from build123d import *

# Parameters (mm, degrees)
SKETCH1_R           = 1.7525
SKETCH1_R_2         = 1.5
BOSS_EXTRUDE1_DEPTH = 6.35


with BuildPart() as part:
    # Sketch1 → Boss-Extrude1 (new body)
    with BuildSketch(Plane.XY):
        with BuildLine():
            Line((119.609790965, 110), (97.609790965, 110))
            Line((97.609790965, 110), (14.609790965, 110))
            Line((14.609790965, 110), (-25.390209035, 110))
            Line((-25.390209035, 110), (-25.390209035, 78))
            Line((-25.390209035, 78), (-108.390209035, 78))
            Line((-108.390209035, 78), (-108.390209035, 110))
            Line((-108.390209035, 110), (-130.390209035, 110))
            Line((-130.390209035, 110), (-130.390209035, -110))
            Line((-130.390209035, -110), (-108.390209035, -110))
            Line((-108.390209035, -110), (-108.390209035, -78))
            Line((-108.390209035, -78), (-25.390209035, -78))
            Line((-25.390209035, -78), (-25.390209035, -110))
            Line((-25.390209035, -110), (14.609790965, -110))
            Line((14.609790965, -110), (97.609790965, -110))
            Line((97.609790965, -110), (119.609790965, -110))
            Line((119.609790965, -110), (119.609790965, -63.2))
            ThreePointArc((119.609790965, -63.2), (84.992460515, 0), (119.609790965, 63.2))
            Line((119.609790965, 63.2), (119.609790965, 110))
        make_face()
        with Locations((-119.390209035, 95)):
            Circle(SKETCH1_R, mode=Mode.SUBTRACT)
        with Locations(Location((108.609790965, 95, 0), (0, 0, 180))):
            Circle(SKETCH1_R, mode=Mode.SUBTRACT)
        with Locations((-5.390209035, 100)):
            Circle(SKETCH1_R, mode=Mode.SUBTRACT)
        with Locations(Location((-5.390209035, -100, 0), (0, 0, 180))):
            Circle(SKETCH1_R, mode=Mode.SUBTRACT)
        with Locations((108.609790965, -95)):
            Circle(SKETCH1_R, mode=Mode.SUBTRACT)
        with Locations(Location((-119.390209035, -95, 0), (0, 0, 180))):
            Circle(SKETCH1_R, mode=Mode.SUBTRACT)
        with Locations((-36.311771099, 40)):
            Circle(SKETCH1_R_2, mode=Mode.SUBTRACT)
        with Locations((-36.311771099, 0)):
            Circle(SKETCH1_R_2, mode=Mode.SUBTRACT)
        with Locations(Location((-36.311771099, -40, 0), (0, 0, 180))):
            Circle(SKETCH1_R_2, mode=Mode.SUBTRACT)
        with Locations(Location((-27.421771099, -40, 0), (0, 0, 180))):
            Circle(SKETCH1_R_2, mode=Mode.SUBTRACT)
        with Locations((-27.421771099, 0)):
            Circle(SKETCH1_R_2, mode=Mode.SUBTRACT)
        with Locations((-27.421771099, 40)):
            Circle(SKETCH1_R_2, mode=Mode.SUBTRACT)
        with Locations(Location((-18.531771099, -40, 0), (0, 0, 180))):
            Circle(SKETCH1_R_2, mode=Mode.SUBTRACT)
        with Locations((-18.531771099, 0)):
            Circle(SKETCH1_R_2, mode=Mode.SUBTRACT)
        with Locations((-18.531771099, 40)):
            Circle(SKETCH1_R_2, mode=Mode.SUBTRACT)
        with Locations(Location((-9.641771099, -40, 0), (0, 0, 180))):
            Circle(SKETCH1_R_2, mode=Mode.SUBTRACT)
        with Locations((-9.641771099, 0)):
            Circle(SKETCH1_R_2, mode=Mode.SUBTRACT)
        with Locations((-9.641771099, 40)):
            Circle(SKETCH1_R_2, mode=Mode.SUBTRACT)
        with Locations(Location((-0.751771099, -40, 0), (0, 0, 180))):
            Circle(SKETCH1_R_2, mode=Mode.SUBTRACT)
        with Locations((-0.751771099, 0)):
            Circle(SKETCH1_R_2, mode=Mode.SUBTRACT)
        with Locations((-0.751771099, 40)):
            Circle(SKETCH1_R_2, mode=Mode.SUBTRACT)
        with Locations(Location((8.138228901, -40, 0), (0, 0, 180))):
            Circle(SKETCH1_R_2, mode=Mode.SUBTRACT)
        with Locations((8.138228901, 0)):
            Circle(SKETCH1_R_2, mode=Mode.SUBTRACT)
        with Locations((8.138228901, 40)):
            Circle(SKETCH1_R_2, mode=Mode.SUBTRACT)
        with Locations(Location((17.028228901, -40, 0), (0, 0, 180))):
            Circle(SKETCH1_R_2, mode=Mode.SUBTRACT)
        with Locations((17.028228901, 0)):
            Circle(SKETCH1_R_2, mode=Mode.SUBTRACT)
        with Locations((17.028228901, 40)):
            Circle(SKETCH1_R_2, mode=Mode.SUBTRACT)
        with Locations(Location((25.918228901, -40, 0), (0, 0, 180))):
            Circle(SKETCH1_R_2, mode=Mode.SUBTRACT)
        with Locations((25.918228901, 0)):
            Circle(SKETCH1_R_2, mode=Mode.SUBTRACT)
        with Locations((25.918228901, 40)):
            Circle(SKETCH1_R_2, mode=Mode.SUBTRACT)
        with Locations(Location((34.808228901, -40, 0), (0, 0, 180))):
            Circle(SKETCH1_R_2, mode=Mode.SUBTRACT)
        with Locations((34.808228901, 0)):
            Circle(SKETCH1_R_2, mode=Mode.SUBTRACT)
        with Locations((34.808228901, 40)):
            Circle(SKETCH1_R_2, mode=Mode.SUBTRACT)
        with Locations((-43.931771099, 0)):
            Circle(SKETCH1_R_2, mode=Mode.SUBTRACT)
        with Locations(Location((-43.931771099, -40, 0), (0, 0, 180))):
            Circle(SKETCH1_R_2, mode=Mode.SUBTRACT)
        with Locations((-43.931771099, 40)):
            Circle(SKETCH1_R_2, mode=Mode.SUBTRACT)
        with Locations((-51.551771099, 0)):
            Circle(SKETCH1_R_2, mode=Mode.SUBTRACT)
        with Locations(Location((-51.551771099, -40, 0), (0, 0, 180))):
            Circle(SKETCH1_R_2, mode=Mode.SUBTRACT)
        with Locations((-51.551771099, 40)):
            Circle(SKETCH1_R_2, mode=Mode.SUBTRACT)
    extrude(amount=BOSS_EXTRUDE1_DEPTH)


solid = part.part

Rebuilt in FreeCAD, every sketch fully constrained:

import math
import FreeCAD as App
import Part
import Sketcher
from FreeCAD import Vector
Q = App.Units.Quantity

doc = App.newDocument("Part")
body = doc.addObject("PartDesign::Body", "Body")

sketch1 = body.newObject("Sketcher::SketchObject", "Sketch")
sketch1.AttachmentSupport = (doc.getObject("XY_Plane"), [""])
sketch1.MapMode = "FlatFace"
sketch1.addGeometry(Part.LineSegment(Vector(119.6, 110, 0), Vector(-25.4, 110, 0)), False)
sketch1.addGeometry(Part.LineSegment(Vector(-25.4, 110, 0), Vector(-25.4, 78, 0)), False)
sketch1.addGeometry(Part.LineSegment(Vector(-25.4, 78, 0), Vector(-108.4, 78, 0)), False)
sketch1.addGeometry(Part.LineSegment(Vector(-108.4, 78, 0), Vector(-108.4, 110, 0)), False)
sketch1.addGeometry(Part.LineSegment(Vector(-108.4, 110, 0), Vector(-130.4, 110, 0)), False)
sketch1.addGeometry(Part.LineSegment(Vector(-130.4, 110, 0), Vector(-130.4, -110, 0)), False)
sketch1.addGeometry(Part.LineSegment(Vector(-130.4, -110, 0), Vector(-108.4, -110, 0)), False)
sketch1.addGeometry(Part.LineSegment(Vector(-108.4, -110, 0), Vector(-108.4, -78, 0)), False)
sketch1.addGeometry(Part.LineSegment(Vector(-108.4, -78, 0), Vector(-25.4, -78, 0)), False)
sketch1.addGeometry(Part.LineSegment(Vector(-25.4, -78, 0), Vector(-25.4, -110, 0)), False)
sketch1.addGeometry(Part.LineSegment(Vector(-25.4, -110, 0), Vector(119.6, -110, 0)), False)
sketch1.addGeometry(Part.LineSegment(Vector(119.6, -110, 0), Vector(119.6, -63.2, 0)), False)
sketch1.addGeometry(Part.ArcOfCircle(Part.Circle(Vector(160, 0, 0), Vector(0, 0, 1), 75), math.radians(123), math.radians(237)), False)
sketch1.addGeometry(Part.LineSegment(Vector(119.6, 63.2, 0), Vector(119.6, 110, 0)), False)
sketch1.addGeometry(Part.Circle(Vector(-119.4, -95, 0), Vector(0, 0, 1), 1.8), False)
sketch1.addGeometry(Part.Circle(Vector(-51.6, -40, 0), Vector(0, 0, 1), 1.5), False)
sketch1.addGeometry(Part.Circle(Vector(-43.9, -40, 0), Vector(0, 0, 1), 1.5), False)
sketch1.addGeometry(Part.Circle(Vector(-36.3, -40, 0), Vector(0, 0, 1), 1.5), False)
sketch1.addGeometry(Part.Circle(Vector(-27.4, -40, 0), Vector(0, 0, 1), 1.5), False)
sketch1.addGeometry(Part.Circle(Vector(-18.5, -40, 0), Vector(0, 0, 1), 1.5), False)
sketch1.addGeometry(Part.Circle(Vector(-9.6, -40, 0), Vector(0, 0, 1), 1.5), False)
sketch1.addGeometry(Part.Circle(Vector(-5.4, -100, 0), Vector(0, 0, 1), 1.8), False)
sketch1.addGeometry(Part.Circle(Vector(108.6, -95, 0), Vector(0, 0, 1), 1.8), False)
sketch1.addGeometry(Part.Circle(Vector(-0.8, -40, 0), Vector(0, 0, 1), 1.5), False)
sketch1.addGeometry(Part.Circle(Vector(8.1, -40, 0), Vector(0, 0, 1), 1.5), False)
sketch1.addGeometry(Part.Circle(Vector(17, -40, 0), Vector(0, 0, 1), 1.5), False)
sketch1.addGeometry(Part.Circle(Vector(25.9, -40, 0), Vector(0, 0, 1), 1.5), False)
sketch1.addGeometry(Part.Circle(Vector(34.8, -40, 0), Vector(0, 0, 1), 1.5), False)
sketch1.addGeometry(Part.Circle(Vector(-51.6, 0, 0), Vector(0, 0, 1), 1.5), False)
sketch1.addGeometry(Part.Circle(Vector(-43.9, 0, 0), Vector(0, 0, 1), 1.5), False)
sketch1.addGeometry(Part.Circle(Vector(-36.3, 0, 0), Vector(0, 0, 1), 1.5), False)
sketch1.addGeometry(Part.Circle(Vector(-27.4, 0, 0), Vector(0, 0, 1), 1.5), False)
sketch1.addGeometry(Part.Circle(Vector(-18.5, 0, 0), Vector(0, 0, 1), 1.5), False)
sketch1.addGeometry(Part.Circle(Vector(-9.6, 0, 0), Vector(0, 0, 1), 1.5), False)
sketch1.addGeometry(Part.Circle(Vector(-51.6, 40, 0), Vector(0, 0, 1), 1.5), False)
sketch1.addGeometry(Part.Circle(Vector(-43.9, 40, 0), Vector(0, 0, 1), 1.5), False)
sketch1.addGeometry(Part.Circle(Vector(-36.3, 40, 0), Vector(0, 0, 1), 1.5), False)
sketch1.addGeometry(Part.Circle(Vector(-27.4, 40, 0), Vector(0, 0, 1), 1.5), False)
sketch1.addGeometry(Part.Circle(Vector(-18.5, 40, 0), Vector(0, 0, 1), 1.5), False)
sketch1.addGeometry(Part.Circle(Vector(-9.6, 40, 0), Vector(0, 0, 1), 1.5), False)
sketch1.addGeometry(Part.Circle(Vector(-119.4, 95, 0), Vector(0, 0, 1), 1.8), False)
sketch1.addGeometry(Part.Circle(Vector(-0.8, 0, 0), Vector(0, 0, 1), 1.5), False)
sketch1.addGeometry(Part.Circle(Vector(8.1, 0, 0), Vector(0, 0, 1), 1.5), False)
sketch1.addGeometry(Part.Circle(Vector(17, 0, 0), Vector(0, 0, 1), 1.5), False)
sketch1.addGeometry(Part.Circle(Vector(25.9, 0, 0), Vector(0, 0, 1), 1.5), False)
sketch1.addGeometry(Part.Circle(Vector(34.8, 0, 0), Vector(0, 0, 1), 1.5), False)
sketch1.addGeometry(Part.Circle(Vector(-0.8, 40, 0), Vector(0, 0, 1), 1.5), False)
sketch1.addGeometry(Part.Circle(Vector(8.1, 40, 0), Vector(0, 0, 1), 1.5), False)
sketch1.addGeometry(Part.Circle(Vector(17, 40, 0), Vector(0, 0, 1), 1.5), False)
sketch1.addGeometry(Part.Circle(Vector(25.9, 40, 0), Vector(0, 0, 1), 1.5), False)
sketch1.addGeometry(Part.Circle(Vector(34.8, 40, 0), Vector(0, 0, 1), 1.5), False)
sketch1.addGeometry(Part.Circle(Vector(-5.4, 100, 0), Vector(0, 0, 1), 1.8), False)
sketch1.addGeometry(Part.Circle(Vector(108.6, 95, 0), Vector(0, 0, 1), 1.8), False)
sketch1.addConstraint(Sketcher.Constraint("Coincident", 0, 2, 1, 1))
sketch1.addConstraint(Sketcher.Constraint("Coincident", 1, 2, 2, 1))
sketch1.addConstraint(Sketcher.Constraint("Coincident", 2, 2, 3, 1))
sketch1.addConstraint(Sketcher.Constraint("Coincident", 3, 2, 4, 1))
sketch1.addConstraint(Sketcher.Constraint("Coincident", 4, 2, 5, 1))
sketch1.addConstraint(Sketcher.Constraint("Coincident", 5, 2, 6, 1))
sketch1.addConstraint(Sketcher.Constraint("Coincident", 6, 2, 7, 1))
sketch1.addConstraint(Sketcher.Constraint("Coincident", 7, 2, 8, 1))
sketch1.addConstraint(Sketcher.Constraint("Coincident", 8, 2, 9, 1))
sketch1.addConstraint(Sketcher.Constraint("Coincident", 9, 2, 10, 1))
sketch1.addConstraint(Sketcher.Constraint("Coincident", 10, 2, 11, 1))
sketch1.addConstraint(Sketcher.Constraint("Coincident", 11, 2, 12, 2))
sketch1.addConstraint(Sketcher.Constraint("Coincident", 12, 1, 13, 1))
sketch1.addConstraint(Sketcher.Constraint("Coincident", 13, 2, 0, 1))
sketch1.addConstraint(Sketcher.Constraint("Horizontal", 0))
sketch1.addConstraint(Sketcher.Constraint("Vertical", 1))
sketch1.addConstraint(Sketcher.Constraint("Horizontal", 2))
sketch1.addConstraint(Sketcher.Constraint("Vertical", 3))
sketch1.addConstraint(Sketcher.Constraint("Horizontal", 4))
sketch1.addConstraint(Sketcher.Constraint("Vertical", 5))
sketch1.addConstraint(Sketcher.Constraint("Horizontal", 6))
sketch1.addConstraint(Sketcher.Constraint("Vertical", 7))
sketch1.addConstraint(Sketcher.Constraint("Horizontal", 8))
sketch1.addConstraint(Sketcher.Constraint("Vertical", 9))
sketch1.addConstraint(Sketcher.Constraint("Horizontal", 10))
sketch1.addConstraint(Sketcher.Constraint("Vertical", 11))
sketch1.addConstraint(Sketcher.Constraint("Vertical", 13))
sketch1.addConstraint(Sketcher.Constraint("Equal", 15, 16))
sketch1.addConstraint(Sketcher.Constraint("Equal", 16, 17))
sketch1.addConstraint(Sketcher.Constraint("Equal", 17, 18))
sketch1.addConstraint(Sketcher.Constraint("Equal", 18, 19))
sketch1.addConstraint(Sketcher.Constraint("Equal", 19, 20))
sketch1.addConstraint(Sketcher.Constraint("Equal", 14, 21))
sketch1.addConstraint(Sketcher.Constraint("Equal", 21, 22))
sketch1.addConstraint(Sketcher.Constraint("Equal", 20, 23))
sketch1.addConstraint(Sketcher.Constraint("Equal", 23, 24))
sketch1.addConstraint(Sketcher.Constraint("Equal", 24, 25))
sketch1.addConstraint(Sketcher.Constraint("Equal", 25, 26))
sketch1.addConstraint(Sketcher.Constraint("Equal", 26, 27))
sketch1.addConstraint(Sketcher.Constraint("Equal", 27, 28))
sketch1.addConstraint(Sketcher.Constraint("Equal", 28, 29))
sketch1.addConstraint(Sketcher.Constraint("Equal", 29, 30))
sketch1.addConstraint(Sketcher.Constraint("Equal", 30, 31))
sketch1.addConstraint(Sketcher.Constraint("Equal", 31, 32))
sketch1.addConstraint(Sketcher.Constraint("Equal", 32, 33))
sketch1.addConstraint(Sketcher.Constraint("Equal", 33, 34))
sketch1.addConstraint(Sketcher.Constraint("Equal", 34, 35))
sketch1.addConstraint(Sketcher.Constraint("Equal", 35, 36))
sketch1.addConstraint(Sketcher.Constraint("Equal", 36, 37))
sketch1.addConstraint(Sketcher.Constraint("Equal", 37, 38))
sketch1.addConstraint(Sketcher.Constraint("Equal", 38, 39))
sketch1.addConstraint(Sketcher.Constraint("Equal", 22, 40))
sketch1.addConstraint(Sketcher.Constraint("Equal", 39, 41))
sketch1.addConstraint(Sketcher.Constraint("Equal", 41, 42))
sketch1.addConstraint(Sketcher.Constraint("Equal", 42, 43))
sketch1.addConstraint(Sketcher.Constraint("Equal", 43, 44))
sketch1.addConstraint(Sketcher.Constraint("Equal", 44, 45))
sketch1.addConstraint(Sketcher.Constraint("Equal", 45, 46))
sketch1.addConstraint(Sketcher.Constraint("Equal", 46, 47))
sketch1.addConstraint(Sketcher.Constraint("Equal", 47, 48))
sketch1.addConstraint(Sketcher.Constraint("Equal", 48, 49))
sketch1.addConstraint(Sketcher.Constraint("Equal", 49, 50))
sketch1.addConstraint(Sketcher.Constraint("Equal", 40, 51))
sketch1.addConstraint(Sketcher.Constraint("Equal", 51, 52))
sketch1.addConstraint(Sketcher.Constraint("Symmetric", 15, 3, 34, 3, -1))
sketch1.addConstraint(Sketcher.Constraint("Symmetric", 16, 3, 35, 3, -1))
sketch1.addConstraint(Sketcher.Constraint("Symmetric", 17, 3, 36, 3, -1))
sketch1.addConstraint(Sketcher.Constraint("Symmetric", 18, 3, 37, 3, -1))
sketch1.addConstraint(Sketcher.Constraint("Symmetric", 19, 3, 38, 3, -1))
sketch1.addConstraint(Sketcher.Constraint("Symmetric", 20, 3, 39, 3, -1))
sketch1.addConstraint(Sketcher.Constraint("Symmetric", 14, 3, 40, 3, -1))
sketch1.addConstraint(Sketcher.Constraint("Symmetric", 23, 3, 46, 3, -1))
sketch1.addConstraint(Sketcher.Constraint("Symmetric", 24, 3, 47, 3, -1))
sketch1.addConstraint(Sketcher.Constraint("Symmetric", 25, 3, 48, 3, -1))
sketch1.addConstraint(Sketcher.Constraint("Symmetric", 26, 3, 49, 3, -1))
sketch1.addConstraint(Sketcher.Constraint("Symmetric", 27, 3, 50, 3, -1))
sketch1.addConstraint(Sketcher.Constraint("Symmetric", 21, 3, 51, 3, -1))
sketch1.addConstraint(Sketcher.Constraint("Symmetric", 22, 3, 52, 3, -1))
sketch1.addConstraint(Sketcher.Constraint("Symmetric", 3, 2, 6, 2, -1))
sketch1.addConstraint(Sketcher.Constraint("Symmetric", 1, 2, 8, 2, -1))
sketch1.addConstraint(Sketcher.Constraint("Symmetric", 11, 2, 12, 1, -1))
sketch1.addConstraint(Sketcher.Constraint("PointOnObject", 28, 3, -1))
sketch1.addConstraint(Sketcher.Constraint("PointOnObject", 29, 3, -1))
sketch1.addConstraint(Sketcher.Constraint("PointOnObject", 30, 3, -1))
sketch1.addConstraint(Sketcher.Constraint("PointOnObject", 31, 3, -1))
sketch1.addConstraint(Sketcher.Constraint("PointOnObject", 32, 3, -1))
sketch1.addConstraint(Sketcher.Constraint("PointOnObject", 33, 3, -1))
sketch1.addConstraint(Sketcher.Constraint("PointOnObject", 41, 3, -1))
sketch1.addConstraint(Sketcher.Constraint("PointOnObject", 42, 3, -1))
sketch1.addConstraint(Sketcher.Constraint("PointOnObject", 43, 3, -1))
sketch1.addConstraint(Sketcher.Constraint("PointOnObject", 44, 3, -1))
sketch1.addConstraint(Sketcher.Constraint("PointOnObject", 45, 3, -1))
sketch1.addConstraint(Sketcher.Constraint("Horizontal", 15, 3, 16, 3))
sketch1.addConstraint(Sketcher.Constraint("Horizontal", 16, 3, 17, 3))
sketch1.addConstraint(Sketcher.Constraint("Horizontal", 17, 3, 18, 3))
sketch1.addConstraint(Sketcher.Constraint("Horizontal", 18, 3, 19, 3))
sketch1.addConstraint(Sketcher.Constraint("Horizontal", 19, 3, 20, 3))
sketch1.addConstraint(Sketcher.Constraint("Horizontal", 14, 3, 22, 3))
sketch1.addConstraint(Sketcher.Constraint("Horizontal", 20, 3, 23, 3))
sketch1.addConstraint(Sketcher.Constraint("Horizontal", 23, 3, 24, 3))
sketch1.addConstraint(Sketcher.Constraint("Horizontal", 24, 3, 25, 3))
sketch1.addConstraint(Sketcher.Constraint("Horizontal", 25, 3, 26, 3))
sketch1.addConstraint(Sketcher.Constraint("Horizontal", 26, 3, 27, 3))
sketch1.addConstraint(Sketcher.Constraint("Horizontal", 0, 2, 3, 2))
sketch1.addConstraint(Sketcher.Constraint("Horizontal", 6, 2, 9, 2))
sketch1.addConstraint(Sketcher.Constraint("Vertical", 15, 3, 28, 3))
sketch1.addConstraint(Sketcher.Constraint("Vertical", 16, 3, 29, 3))
sketch1.addConstraint(Sketcher.Constraint("Vertical", 17, 3, 30, 3))
sketch1.addConstraint(Sketcher.Constraint("Vertical", 18, 3, 31, 3))
sketch1.addConstraint(Sketcher.Constraint("Vertical", 19, 3, 32, 3))
sketch1.addConstraint(Sketcher.Constraint("Vertical", 20, 3, 33, 3))
sketch1.addConstraint(Sketcher.Constraint("Vertical", 23, 3, 41, 3))
sketch1.addConstraint(Sketcher.Constraint("Vertical", 24, 3, 42, 3))
sketch1.addConstraint(Sketcher.Constraint("Vertical", 25, 3, 43, 3))
sketch1.addConstraint(Sketcher.Constraint("Vertical", 26, 3, 44, 3))
sketch1.addConstraint(Sketcher.Constraint("Vertical", 27, 3, 45, 3))
sketch1.addConstraint(Sketcher.Constraint("Diameter", 15, Q("3 mm")))
sketch1.addConstraint(Sketcher.Constraint("Radius", 12, Q("75 mm")))
sketch1.addConstraint(Sketcher.Constraint("DistanceX", 0, 2, 0, 1, Q("145 mm")))
sketch1.addConstraint(Sketcher.Constraint("DistanceX", 2, 2, 2, 1, Q("83 mm")))
sketch1.addConstraint(Sketcher.Constraint("DistanceX", 4, 2, 4, 1, Q("22 mm")))
sketch1.addConstraint(Sketcher.Constraint("DistanceY", 1, 2, 1, 1, Q("32 mm")))
sketch1.addConstraint(Sketcher.Constraint("DistanceY", 5, 2, 5, 1, Q("220 mm")))
sketch1.addConstraint(Sketcher.Constraint("Diameter", 14, Q("3.505 mm")))
sketch1.addConstraint(Sketcher.Constraint("DistanceY", 11, 1, 11, 2, Q("46.8 mm")))
sketch1.addConstraint(Sketcher.Constraint("DistanceY", 14, 3, -1, 1, Q("95 mm")))
sketch1.addConstraint(Sketcher.Constraint("DistanceY", 15, 3, -1, 1, Q("40 mm")))
sketch1.addConstraint(Sketcher.Constraint("DistanceY", 21, 3, -1, 1, Q("100 mm")))
sketch1.addConstraint(Sketcher.Constraint("DistanceX", 21, 3, 22, 3, Q("114 mm")))
sketch1.addConstraint(Sketcher.Constraint("DistanceX", 0, 2, 51, 3, Q("20 mm")))
sketch1.addConstraint(Sketcher.Constraint("DistanceX", 40, 3, 2, 2, Q("11 mm")))
sketch1.addConstraint(Sketcher.Constraint("DistanceX", 16, 3, 19, 3, Q("25.4 mm")))
sketch1.addConstraint(Sketcher.Constraint("DistanceX", 15, 3, 16, 3, Q("7.62 mm")))
sketch1.addConstraint(Sketcher.Constraint("DistanceX", 16, 3, 17, 3, Q("7.62 mm")))
sketch1.addConstraint(Sketcher.Constraint("DistanceX", 17, 3, 18, 3, Q("8.89 mm")))
sketch1.addConstraint(Sketcher.Constraint("DistanceX", 19, 3, 20, 3, Q("8.89 mm")))
sketch1.addConstraint(Sketcher.Constraint("DistanceX", 20, 3, 23, 3, Q("8.89 mm")))
sketch1.addConstraint(Sketcher.Constraint("DistanceX", 23, 3, 24, 3, Q("8.89 mm")))
sketch1.addConstraint(Sketcher.Constraint("DistanceX", 24, 3, 25, 3, Q("8.89 mm")))
sketch1.addConstraint(Sketcher.Constraint("DistanceX", 25, 3, 26, 3, Q("8.89 mm")))
sketch1.addConstraint(Sketcher.Constraint("DistanceX", 26, 3, 27, 3, Q("8.89 mm")))
sketch1.addConstraint(Sketcher.Constraint("DistanceX", -1, 1, 12, 3, Q("159.992461 mm")))
sketch1.addConstraint(Sketcher.Constraint("DistanceX", 15, 3, -1, 1, Q("51.551771 mm")))
pad1 = body.newObject("PartDesign::Pad", "Pad")
pad1.Profile = sketch1
pad1.Length = 6.35

doc.recompute()
